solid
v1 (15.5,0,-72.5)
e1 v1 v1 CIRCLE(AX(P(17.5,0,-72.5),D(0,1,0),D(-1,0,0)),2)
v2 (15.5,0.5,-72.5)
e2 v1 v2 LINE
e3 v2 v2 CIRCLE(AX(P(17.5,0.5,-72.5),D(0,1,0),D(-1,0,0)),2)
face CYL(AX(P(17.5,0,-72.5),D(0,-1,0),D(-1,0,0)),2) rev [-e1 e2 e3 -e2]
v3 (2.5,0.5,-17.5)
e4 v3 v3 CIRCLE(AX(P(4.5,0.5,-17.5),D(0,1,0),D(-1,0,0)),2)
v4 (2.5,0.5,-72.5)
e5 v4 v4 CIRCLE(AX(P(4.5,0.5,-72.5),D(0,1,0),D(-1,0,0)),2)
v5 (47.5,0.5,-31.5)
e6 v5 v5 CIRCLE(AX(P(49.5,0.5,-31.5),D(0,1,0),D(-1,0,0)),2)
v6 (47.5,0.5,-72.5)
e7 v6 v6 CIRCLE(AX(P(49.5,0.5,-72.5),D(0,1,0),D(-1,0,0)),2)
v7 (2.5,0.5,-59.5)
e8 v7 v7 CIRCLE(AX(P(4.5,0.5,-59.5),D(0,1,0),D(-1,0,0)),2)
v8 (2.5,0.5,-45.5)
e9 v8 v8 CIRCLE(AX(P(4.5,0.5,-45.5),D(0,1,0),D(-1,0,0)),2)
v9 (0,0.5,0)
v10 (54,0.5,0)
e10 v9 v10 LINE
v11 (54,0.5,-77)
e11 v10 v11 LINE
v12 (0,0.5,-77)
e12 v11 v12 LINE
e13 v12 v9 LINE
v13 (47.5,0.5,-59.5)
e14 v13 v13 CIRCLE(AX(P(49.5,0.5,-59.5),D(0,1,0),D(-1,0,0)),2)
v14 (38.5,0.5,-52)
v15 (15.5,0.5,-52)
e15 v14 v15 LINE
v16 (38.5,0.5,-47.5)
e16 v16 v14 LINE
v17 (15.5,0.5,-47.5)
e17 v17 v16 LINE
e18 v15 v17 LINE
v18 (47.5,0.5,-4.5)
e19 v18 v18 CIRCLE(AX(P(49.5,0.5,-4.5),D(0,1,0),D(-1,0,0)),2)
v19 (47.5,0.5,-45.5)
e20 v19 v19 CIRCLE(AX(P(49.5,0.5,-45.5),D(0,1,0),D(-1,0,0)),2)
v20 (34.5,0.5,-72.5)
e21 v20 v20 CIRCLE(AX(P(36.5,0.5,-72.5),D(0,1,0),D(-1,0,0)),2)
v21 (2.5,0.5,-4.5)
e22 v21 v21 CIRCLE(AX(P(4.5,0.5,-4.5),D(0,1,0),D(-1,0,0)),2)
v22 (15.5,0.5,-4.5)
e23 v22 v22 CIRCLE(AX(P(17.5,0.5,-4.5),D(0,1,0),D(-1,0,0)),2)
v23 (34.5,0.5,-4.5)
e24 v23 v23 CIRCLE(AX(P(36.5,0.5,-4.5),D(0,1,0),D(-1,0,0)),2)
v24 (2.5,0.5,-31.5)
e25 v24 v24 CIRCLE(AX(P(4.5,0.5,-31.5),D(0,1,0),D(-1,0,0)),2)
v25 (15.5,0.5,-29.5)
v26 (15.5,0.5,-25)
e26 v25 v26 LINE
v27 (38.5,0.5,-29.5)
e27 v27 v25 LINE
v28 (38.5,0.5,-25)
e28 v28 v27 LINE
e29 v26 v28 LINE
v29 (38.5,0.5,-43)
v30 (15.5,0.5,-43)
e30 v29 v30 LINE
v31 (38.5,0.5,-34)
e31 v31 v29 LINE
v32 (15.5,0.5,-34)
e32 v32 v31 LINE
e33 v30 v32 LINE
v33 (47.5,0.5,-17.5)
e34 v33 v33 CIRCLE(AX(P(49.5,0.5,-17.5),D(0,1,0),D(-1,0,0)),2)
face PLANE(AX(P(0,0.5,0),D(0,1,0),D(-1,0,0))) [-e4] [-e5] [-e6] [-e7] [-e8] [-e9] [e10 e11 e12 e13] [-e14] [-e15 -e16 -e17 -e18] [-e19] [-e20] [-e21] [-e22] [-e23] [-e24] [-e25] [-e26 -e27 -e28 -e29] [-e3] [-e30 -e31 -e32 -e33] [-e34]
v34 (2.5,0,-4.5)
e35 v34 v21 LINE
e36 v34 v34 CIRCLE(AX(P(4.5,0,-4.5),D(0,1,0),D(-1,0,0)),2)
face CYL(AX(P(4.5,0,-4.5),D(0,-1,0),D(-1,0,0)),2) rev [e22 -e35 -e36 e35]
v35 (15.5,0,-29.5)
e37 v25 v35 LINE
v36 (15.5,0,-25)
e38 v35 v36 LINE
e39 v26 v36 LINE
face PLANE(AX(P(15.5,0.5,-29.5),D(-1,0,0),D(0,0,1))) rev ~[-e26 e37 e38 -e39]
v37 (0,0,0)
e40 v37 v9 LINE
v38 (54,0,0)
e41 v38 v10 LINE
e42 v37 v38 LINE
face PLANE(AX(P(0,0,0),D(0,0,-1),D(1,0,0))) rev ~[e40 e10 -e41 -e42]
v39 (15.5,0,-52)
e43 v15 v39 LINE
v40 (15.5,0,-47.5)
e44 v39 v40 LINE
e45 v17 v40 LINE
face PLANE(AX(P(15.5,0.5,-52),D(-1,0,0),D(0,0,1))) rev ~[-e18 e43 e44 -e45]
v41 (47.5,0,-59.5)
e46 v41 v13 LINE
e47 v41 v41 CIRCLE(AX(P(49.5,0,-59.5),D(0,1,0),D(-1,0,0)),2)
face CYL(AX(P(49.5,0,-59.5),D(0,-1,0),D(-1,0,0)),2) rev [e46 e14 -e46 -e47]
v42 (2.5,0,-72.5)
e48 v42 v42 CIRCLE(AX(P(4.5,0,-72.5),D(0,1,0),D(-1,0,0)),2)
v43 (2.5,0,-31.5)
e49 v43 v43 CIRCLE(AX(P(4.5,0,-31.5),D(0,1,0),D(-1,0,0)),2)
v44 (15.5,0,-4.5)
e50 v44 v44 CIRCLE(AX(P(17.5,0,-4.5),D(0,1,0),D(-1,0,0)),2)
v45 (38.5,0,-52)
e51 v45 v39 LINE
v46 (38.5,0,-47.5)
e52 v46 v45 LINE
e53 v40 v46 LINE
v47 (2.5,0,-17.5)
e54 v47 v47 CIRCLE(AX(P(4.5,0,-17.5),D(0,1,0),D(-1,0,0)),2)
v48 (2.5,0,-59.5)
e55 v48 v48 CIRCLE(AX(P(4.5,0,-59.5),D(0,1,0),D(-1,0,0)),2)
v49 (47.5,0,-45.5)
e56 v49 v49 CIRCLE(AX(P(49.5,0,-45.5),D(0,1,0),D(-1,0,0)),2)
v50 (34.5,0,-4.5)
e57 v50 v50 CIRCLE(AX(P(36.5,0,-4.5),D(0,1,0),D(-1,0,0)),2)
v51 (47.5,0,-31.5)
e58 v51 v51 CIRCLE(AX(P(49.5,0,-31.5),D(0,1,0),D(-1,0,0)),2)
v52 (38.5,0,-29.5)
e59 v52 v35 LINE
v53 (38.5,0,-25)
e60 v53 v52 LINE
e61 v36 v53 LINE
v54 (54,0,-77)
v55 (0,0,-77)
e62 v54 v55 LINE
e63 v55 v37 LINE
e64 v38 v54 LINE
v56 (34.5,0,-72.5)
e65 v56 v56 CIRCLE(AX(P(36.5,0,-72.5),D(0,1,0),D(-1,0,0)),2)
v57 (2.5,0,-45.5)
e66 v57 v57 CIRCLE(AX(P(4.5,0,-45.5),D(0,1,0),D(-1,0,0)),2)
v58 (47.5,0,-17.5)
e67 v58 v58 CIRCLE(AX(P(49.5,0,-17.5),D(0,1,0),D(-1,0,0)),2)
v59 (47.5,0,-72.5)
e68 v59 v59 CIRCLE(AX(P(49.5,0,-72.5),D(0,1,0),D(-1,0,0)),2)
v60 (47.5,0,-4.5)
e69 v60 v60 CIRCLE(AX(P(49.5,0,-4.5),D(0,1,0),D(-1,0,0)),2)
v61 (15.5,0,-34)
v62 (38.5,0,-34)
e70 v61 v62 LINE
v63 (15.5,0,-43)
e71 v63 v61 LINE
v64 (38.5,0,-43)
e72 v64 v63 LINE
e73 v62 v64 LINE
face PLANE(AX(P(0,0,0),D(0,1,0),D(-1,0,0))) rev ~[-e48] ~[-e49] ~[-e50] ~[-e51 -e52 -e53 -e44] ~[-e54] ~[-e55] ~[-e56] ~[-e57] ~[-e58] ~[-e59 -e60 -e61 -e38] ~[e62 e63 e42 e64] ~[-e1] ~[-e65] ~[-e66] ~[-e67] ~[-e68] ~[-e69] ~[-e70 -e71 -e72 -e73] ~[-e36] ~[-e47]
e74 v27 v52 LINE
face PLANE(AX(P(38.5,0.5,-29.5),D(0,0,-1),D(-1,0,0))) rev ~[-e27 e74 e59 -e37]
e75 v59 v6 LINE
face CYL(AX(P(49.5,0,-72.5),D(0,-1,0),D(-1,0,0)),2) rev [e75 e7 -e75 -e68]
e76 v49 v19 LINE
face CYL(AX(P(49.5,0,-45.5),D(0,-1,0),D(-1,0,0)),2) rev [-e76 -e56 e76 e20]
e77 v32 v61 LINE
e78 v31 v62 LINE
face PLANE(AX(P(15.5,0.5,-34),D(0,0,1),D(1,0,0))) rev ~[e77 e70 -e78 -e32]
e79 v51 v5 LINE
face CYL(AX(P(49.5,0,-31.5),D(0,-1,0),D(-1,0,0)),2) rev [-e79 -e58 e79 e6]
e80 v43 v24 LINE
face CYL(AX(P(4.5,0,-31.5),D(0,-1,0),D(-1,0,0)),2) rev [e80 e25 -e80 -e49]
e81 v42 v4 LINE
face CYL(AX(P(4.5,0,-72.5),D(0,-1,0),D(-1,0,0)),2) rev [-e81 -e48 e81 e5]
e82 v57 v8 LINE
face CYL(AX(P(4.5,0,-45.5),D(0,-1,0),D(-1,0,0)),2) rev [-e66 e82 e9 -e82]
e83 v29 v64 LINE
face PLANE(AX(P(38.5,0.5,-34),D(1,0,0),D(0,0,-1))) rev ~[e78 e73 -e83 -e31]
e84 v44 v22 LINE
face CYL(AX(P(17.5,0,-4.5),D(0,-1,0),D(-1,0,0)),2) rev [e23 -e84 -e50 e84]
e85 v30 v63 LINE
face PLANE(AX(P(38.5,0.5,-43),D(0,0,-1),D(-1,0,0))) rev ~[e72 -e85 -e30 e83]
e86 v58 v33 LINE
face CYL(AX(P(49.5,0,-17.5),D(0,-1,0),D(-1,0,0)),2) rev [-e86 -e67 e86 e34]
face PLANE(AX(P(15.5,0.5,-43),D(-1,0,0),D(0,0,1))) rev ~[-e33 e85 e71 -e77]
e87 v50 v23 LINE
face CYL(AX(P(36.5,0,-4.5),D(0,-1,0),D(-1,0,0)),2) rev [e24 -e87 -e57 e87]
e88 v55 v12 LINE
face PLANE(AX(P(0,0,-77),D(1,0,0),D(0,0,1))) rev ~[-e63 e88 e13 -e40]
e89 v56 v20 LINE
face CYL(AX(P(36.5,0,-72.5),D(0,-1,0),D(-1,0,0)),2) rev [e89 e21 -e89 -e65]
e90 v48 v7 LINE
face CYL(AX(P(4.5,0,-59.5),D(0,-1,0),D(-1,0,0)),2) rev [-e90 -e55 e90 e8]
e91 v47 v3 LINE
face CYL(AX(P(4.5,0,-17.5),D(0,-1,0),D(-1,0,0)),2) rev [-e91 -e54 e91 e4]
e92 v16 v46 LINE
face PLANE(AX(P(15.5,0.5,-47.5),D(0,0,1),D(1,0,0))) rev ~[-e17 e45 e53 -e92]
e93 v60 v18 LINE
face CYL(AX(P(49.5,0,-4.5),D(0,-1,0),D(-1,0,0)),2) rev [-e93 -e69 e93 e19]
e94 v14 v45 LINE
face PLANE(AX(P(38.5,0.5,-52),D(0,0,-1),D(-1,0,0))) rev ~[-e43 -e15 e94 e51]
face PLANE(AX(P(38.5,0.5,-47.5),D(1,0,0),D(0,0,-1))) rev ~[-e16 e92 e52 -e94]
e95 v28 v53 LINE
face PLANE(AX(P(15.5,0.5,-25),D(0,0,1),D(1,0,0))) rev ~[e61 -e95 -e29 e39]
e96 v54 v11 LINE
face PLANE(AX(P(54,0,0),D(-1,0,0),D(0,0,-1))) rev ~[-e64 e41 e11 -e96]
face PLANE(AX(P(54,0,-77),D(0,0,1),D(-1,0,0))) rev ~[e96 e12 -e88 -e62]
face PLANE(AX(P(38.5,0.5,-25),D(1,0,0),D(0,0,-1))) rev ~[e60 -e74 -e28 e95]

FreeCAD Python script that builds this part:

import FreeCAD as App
import Part
import Sketcher

V = App.Vector

doc = App.newDocument("Part")
params = doc.addObject("Spreadsheet::Sheet", "Params")
for row, (alias, value) in enumerate([
    ("sketch1_diameter", "4 mm"),
    ("sketch1_width", "54 mm"),
    ("sketch1_height", "77 mm"),
    ("pad1_length", "0.5 mm"),
    ("sketch2_width", "23 mm"),
    ("sketch2_height", "9 mm"),
    ("sketch2_height2", "4.5 mm"),
], start=1):
    params.set(f"A{row}", alias)
    params.set(f"B{row}", "=" + value)
    params.setAlias(f"B{row}", alias)

body = doc.addObject("PartDesign::Body", "Body")

# Sketch on XZ plane
sketch1 = body.newObject("Sketcher::SketchObject", "Sketch")
sketch1.AttachmentSupport = (doc.getObject("XZ_Plane"), [""])
sketch1.MapMode = "FlatFace"
sketch1.addGeometry([
    Part.LineSegment(V(0, -77, 0), V(0, 0, 0)),  # 0
    Part.LineSegment(V(0, 0, 0), V(54, 0, 0)),  # 1
    Part.LineSegment(V(54, 0, 0), V(54, -77, 0)),  # 2
    Part.LineSegment(V(54, -77, 0), V(0, -77, 0)),  # 3
    Part.Circle(V(49.5, -72.5, 0), V(0, 0, 1), 2),  # 4
    Part.Circle(V(49.5, -59.5, 0), V(0, 0, 1), 2),  # 5
    Part.Circle(V(36.5, -72.5, 0), V(0, 0, 1), 2),  # 6
    Part.Circle(V(49.5, -45.5, 0), V(0, 0, 1), 2),  # 7
    Part.Circle(V(17.5, -72.5, 0), V(0, 0, 1), 2),  # 8
    Part.Circle(V(4.5, -72.5, 0), V(0, 0, 1), 2),  # 9
    Part.Circle(V(4.5, -59.5, 0), V(0, 0, 1), 2),  # 10
    Part.Circle(V(4.5, -45.5, 0), V(0, 0, 1), 2),  # 11
    Part.Circle(V(49.5, -31.5, 0), V(0, 0, 1), 2),  # 12
    Part.Circle(V(49.5, -17.5, 0), V(0, 0, 1), 2),  # 13
    Part.Circle(V(49.5, -4.5, 0), V(0, 0, 1), 2),  # 14
    Part.Circle(V(36.5, -4.5, 0), V(0, 0, 1), 2),  # 15
    Part.Circle(V(4.5, -31.5, 0), V(0, 0, 1), 2),  # 16
    Part.Circle(V(17.5, -4.5, 0), V(0, 0, 1), 2),  # 17
    Part.Circle(V(4.5, -17.5, 0), V(0, 0, 1), 2),  # 18
    Part.Circle(V(4.5, -4.5, 0), V(0, 0, 1), 2),  # 19
], False)
sketch1.addConstraint([
    Sketcher.Constraint("Coincident", 0, 2, 1, 1),
    Sketcher.Constraint("Coincident", 1, 2, 2, 1),
    Sketcher.Constraint("Coincident", 2, 2, 3, 1),
    Sketcher.Constraint("Coincident", 3, 2, 0, 1),
    Sketcher.Constraint("Vertical", 0),
    Sketcher.Constraint("Horizontal", 1),
    Sketcher.Constraint("Vertical", 2),
    Sketcher.Constraint("Horizontal", 3),
    Sketcher.Constraint("Coincident", 0, 2, -1, 1),
    Sketcher.Constraint("Equal", 4, 5),
    Sketcher.Constraint("Equal", 5, 6),
    Sketcher.Constraint("Equal", 6, 7),
    Sketcher.Constraint("Equal", 7, 8),
    Sketcher.Constraint("Equal", 8, 9),
    Sketcher.Constraint("Equal", 9, 10),
    Sketcher.Constraint("Equal", 10, 11),
    Sketcher.Constraint("Equal", 11, 12),
    Sketcher.Constraint("Equal", 12, 13),
    Sketcher.Constraint("Equal", 13, 14),
    Sketcher.Constraint("Equal", 14, 15),
    Sketcher.Constraint("Equal", 15, 16),
    Sketcher.Constraint("Equal", 16, 17),
    Sketcher.Constraint("Equal", 17, 18),
    Sketcher.Constraint("Equal", 18, 19),
    Sketcher.Constraint("Horizontal", 4, 3, 6, 3),
    Sketcher.Constraint("Horizontal", 6, 3, 8, 3),
    Sketcher.Constraint("Horizontal", 8, 3, 9, 3),
    Sketcher.Constraint("Horizontal", 5, 3, 10, 3),
    Sketcher.Constraint("Horizontal", 7, 3, 11, 3),
    Sketcher.Constraint("Horizontal", 14, 3, 15, 3),
    Sketcher.Constraint("Horizontal", 12, 3, 16, 3),
    Sketcher.Constraint("Horizontal", 15, 3, 17, 3),
    Sketcher.Constraint("Horizontal", 13, 3, 18, 3),
    Sketcher.Constraint("Horizontal", 17, 3, 19, 3),
    Sketcher.Constraint("Vertical", 4, 3, 5, 3),
    Sketcher.Constraint("Vertical", 5, 3, 7, 3),
    Sketcher.Constraint("Vertical", 9, 3, 10, 3),
    Sketcher.Constraint("Vertical", 10, 3, 11, 3),
    Sketcher.Constraint("Vertical", 7, 3, 12, 3),
    Sketcher.Constraint("Vertical", 12, 3, 13, 3),
    Sketcher.Constraint("Vertical", 13, 3, 14, 3),
    Sketcher.Constraint("Vertical", 6, 3, 15, 3),
    Sketcher.Constraint("Vertical", 11, 3, 16, 3),
    Sketcher.Constraint("Vertical", 8, 3, 17, 3),
    Sketcher.Constraint("Vertical", 16, 3, 18, 3),
    Sketcher.Constraint("Vertical", 18, 3, 19, 3),
    Sketcher.Constraint("Diameter", 4, 4.0),
    Sketcher.Constraint("DistanceX", 1, 1, 1, 2, 54.0),
    Sketcher.Constraint("DistanceY", 0, 1, 0, 2, 77.0),
    Sketcher.Constraint("DistanceY", 4, 3, 5, 3, 13.0),
    Sketcher.Constraint("DistanceX", 6, 3, 4, 3, 13.0),
    Sketcher.Constraint("DistanceY", 5, 3, 7, 3, 14.0),
    Sketcher.Constraint("DistanceX", 8, 3, 6, 3, 19.0),
    Sketcher.Constraint("DistanceX", 9, 3, 8, 3, 13.0),
    Sketcher.Constraint("DistanceY", 7, 3, 12, 3, 14.0),
    Sketcher.Constraint("DistanceY", 12, 3, 13, 3, 14.0),
    Sketcher.Constraint("DistanceY", 13, 3, 14, 3, 13.0),
    Sketcher.Constraint("DistanceX", -1, 1, 9, 3, 4.5),
    Sketcher.Constraint("DistanceY", 14, 3, -1, 1, 4.5),
])
sketch1.setExpression("Constraints[46]", "Params.sketch1_diameter")
sketch1.setExpression("Constraints[47]", "Params.sketch1_width")
sketch1.setExpression("Constraints[48]", "Params.sketch1_height")
pad1 = body.newObject("PartDesign::Pad", "Pad")
pad1.Profile = sketch1
pad1.setExpression("Length", "Params.pad1_length")
pad1.Reversed = True

# Sketch on XZ plane
sketch2 = body.newObject("Sketcher::SketchObject", "Sketch001")
sketch2.AttachmentSupport = (doc.getObject("XZ_Plane"), [""])
sketch2.MapMode = "FlatFace"
sketch2.AttachmentOffset = App.Placement(V(0, 0, -0.5), App.Rotation())
sketch2.addGeometry([
    Part.LineSegment(V(15.5, -52, 0), V(15.5, -47.5, 0)),  # 0
    Part.LineSegment(V(15.5, -47.5, 0), V(38.5, -47.5, 0)),  # 1
    Part.LineSegment(V(38.5, -47.5, 0), V(38.5, -52, 0)),  # 2
    Part.LineSegment(V(38.5, -52, 0), V(15.5, -52, 0)),  # 3
    Part.LineSegment(V(15.5, -43, 0), V(15.5, -34, 0)),  # 4
    Part.LineSegment(V(15.5, -34, 0), V(38.5, -34, 0)),  # 5
    Part.LineSegment(V(38.5, -34, 0), V(38.5, -43, 0)),  # 6
    Part.LineSegment(V(38.5, -43, 0), V(15.5, -43, 0)),  # 7
    Part.LineSegment(V(15.5, -29.5, 0), V(15.5, -25, 0)),  # 8
    Part.LineSegment(V(15.5, -25, 0), V(38.5, -25, 0)),  # 9
    Part.LineSegment(V(38.5, -25, 0), V(38.5, -29.5, 0)),  # 10
    Part.LineSegment(V(38.5, -29.5, 0), V(15.5, -29.5, 0)),  # 11
], False)
sketch2.addConstraint([
    Sketcher.Constraint("Coincident", 0, 2, 1, 1),
    Sketcher.Constraint("Coincident", 1, 2, 2, 1),
    Sketcher.Constraint("Coincident", 2, 2, 3, 1),
    Sketcher.Constraint("Coincident", 3, 2, 0, 1),
    Sketcher.Constraint("Coincident", 4, 2, 5, 1),
    Sketcher.Constraint("Coincident", 5, 2, 6, 1),
    Sketcher.Constraint("Coincident", 6, 2, 7, 1),
    Sketcher.Constraint("Coincident", 7, 2, 4, 1),
    Sketcher.Constraint("Coincident", 8, 2, 9, 1),
    Sketcher.Constraint("Coincident", 9, 2, 10, 1),
    Sketcher.Constraint("Coincident", 10, 2, 11, 1),
    Sketcher.Constraint("Coincident", 11, 2, 8, 1),
    Sketcher.Constraint("Vertical", 0),
    Sketcher.Constraint("Horizontal", 1),
    Sketcher.Constraint("Vertical", 2),
    Sketcher.Constraint("Horizontal", 3),
    Sketcher.Constraint("Vertical", 4),
    Sketcher.Constraint("Horizontal", 5),
    Sketcher.Constraint("Vertical", 6),
    Sketcher.Constraint("Horizontal", 7),
    Sketcher.Constraint("Vertical", 8),
    Sketcher.Constraint("Horizontal", 9),
    Sketcher.Constraint("Vertical", 10),
    Sketcher.Constraint("Horizontal", 11),
    Sketcher.Constraint("Vertical", 3, 2, 4, 2),
    Sketcher.Constraint("Vertical", 2, 2, 5, 2),
    Sketcher.Constraint("Vertical", 7, 2, 8, 2),
    Sketcher.Constraint("Vertical", 6, 2, 9, 2),
    Sketcher.Constraint("Equal", 2, 8),
    Sketcher.Constraint("DistanceX", 1, 1, 1, 2, 23.0),
    Sketcher.Constraint("DistanceY", 4, 1, 4, 2, 9.0),
    Sketcher.Constraint("DistanceY", 0, 1, 0, 2, 4.5),
    Sketcher.Constraint("DistanceY", 2, 2, 6, 2, 9.0),
    Sketcher.Constraint("DistanceY", 4, 2, 8, 2, 9.0),
    Sketcher.Constraint("DistanceX", -1, 1, 1, 2, 38.5),
    Sketcher.Constraint("DistanceY", 2, 2, -1, 1, 52.0),
])
sketch2.setExpression("Constraints[29]", "Params.sketch2_width")
sketch2.setExpression("Constraints[30]", "Params.sketch2_height")
sketch2.setExpression("Constraints[31]", "Params.sketch2_height2")
pocket1 = body.newObject("PartDesign::Pocket", "Pocket")
pocket1.Profile = sketch2
pocket1.Type = "ThroughAll"
pocket1.Reversed = True

doc.recompute()
